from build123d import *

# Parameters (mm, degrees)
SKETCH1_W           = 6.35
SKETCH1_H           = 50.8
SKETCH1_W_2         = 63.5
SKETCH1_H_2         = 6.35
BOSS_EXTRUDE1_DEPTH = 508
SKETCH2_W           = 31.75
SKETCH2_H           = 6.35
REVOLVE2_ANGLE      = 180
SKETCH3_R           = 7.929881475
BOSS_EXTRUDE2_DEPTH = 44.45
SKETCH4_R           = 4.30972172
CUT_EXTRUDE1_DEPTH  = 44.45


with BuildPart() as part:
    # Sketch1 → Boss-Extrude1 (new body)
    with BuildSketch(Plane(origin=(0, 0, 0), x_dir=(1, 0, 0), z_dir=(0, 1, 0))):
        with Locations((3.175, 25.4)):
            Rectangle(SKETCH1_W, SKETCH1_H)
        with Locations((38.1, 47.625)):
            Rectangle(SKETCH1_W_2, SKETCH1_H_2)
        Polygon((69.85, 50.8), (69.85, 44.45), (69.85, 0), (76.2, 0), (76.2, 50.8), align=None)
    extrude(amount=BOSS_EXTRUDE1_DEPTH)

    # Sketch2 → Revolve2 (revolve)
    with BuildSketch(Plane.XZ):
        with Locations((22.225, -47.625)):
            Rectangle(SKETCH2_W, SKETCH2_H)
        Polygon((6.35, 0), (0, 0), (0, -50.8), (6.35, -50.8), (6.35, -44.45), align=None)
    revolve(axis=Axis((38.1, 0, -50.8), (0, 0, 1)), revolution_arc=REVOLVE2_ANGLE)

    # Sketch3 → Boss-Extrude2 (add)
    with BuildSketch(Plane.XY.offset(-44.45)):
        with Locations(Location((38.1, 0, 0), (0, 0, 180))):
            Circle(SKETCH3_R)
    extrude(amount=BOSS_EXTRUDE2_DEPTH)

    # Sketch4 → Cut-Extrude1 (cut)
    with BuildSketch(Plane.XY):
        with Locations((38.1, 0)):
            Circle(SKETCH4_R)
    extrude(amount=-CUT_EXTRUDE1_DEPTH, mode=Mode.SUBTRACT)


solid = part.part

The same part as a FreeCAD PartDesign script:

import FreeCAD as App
import Part
import Sketcher

V = App.Vector
Q = App.Units.Quantity

doc = App.newDocument("Part")
body = doc.addObject("PartDesign::Body", "Body")

# Sketch on XZ plane
sketch1 = body.newObject("Sketcher::SketchObject", "Sketch")
sketch1.AttachmentSupport = (doc.getObject("XZ_Plane"), [""])
sketch1.MapMode = "FlatFace"
sketch1.addGeometry(Part.LineSegment(V(0, -50.8, 0), V(0, 0, 0)), False)
sketch1.addGeometry(Part.LineSegment(V(0, 0, 0), V(6.35, 0, 0)), False)
sketch1.addGeometry(Part.LineSegment(V(6.35, 0, 0), V(6.35, -44.45, 0)), False)
sketch1.addGeometry(Part.LineSegment(V(6.35, -44.45, 0), V(69.85, -44.45, 0)), False)
sketch1.addGeometry(Part.LineSegment(V(69.85, -44.45, 0), V(69.85, 0, 0)), False)
sketch1.addGeometry(Part.LineSegment(V(69.85, 0, 0), V(76.2, 0, 0)), False)
sketch1.addGeometry(Part.LineSegment(V(76.2, 0, 0), V(76.2, -50.8, 0)), False)
sketch1.addGeometry(Part.LineSegment(V(76.2, -50.8, 0), V(0, -50.8, 0)), False)
sketch1.addConstraint(Sketcher.Constraint("Coincident", 0, 2, 1, 1))
sketch1.addConstraint(Sketcher.Constraint("Coincident", 1, 2, 2, 1))
sketch1.addConstraint(Sketcher.Constraint("Coincident", 2, 2, 3, 1))
sketch1.addConstraint(Sketcher.Constraint("Coincident", 3, 2, 4, 1))
sketch1.addConstraint(Sketcher.Constraint("Coincident", 4, 2, 5, 1))
sketch1.addConstraint(Sketcher.Constraint("Coincident", 5, 2, 6, 1))
sketch1.addConstraint(Sketcher.Constraint("Coincident", 6, 2, 7, 1))
sketch1.addConstraint(Sketcher.Constraint("Coincident", 7, 2, 0, 1))
sketch1.addConstraint(Sketcher.Constraint("Vertical", 0))
sketch1.addConstraint(Sketcher.Constraint("Horizontal", 1))
sketch1.addConstraint(Sketcher.Constraint("Vertical", 2))
sketch1.addConstraint(Sketcher.Constraint("Horizontal", 3))
sketch1.addConstraint(Sketcher.Constraint("Vertical", 4))
sketch1.addConstraint(Sketcher.Constraint("Horizontal", 5))
sketch1.addConstraint(Sketcher.Constraint("Vertical", 6))
sketch1.addConstraint(Sketcher.Constraint("Horizontal", 7))
sketch1.addConstraint(Sketcher.Constraint("Coincident", 0, 2, -1, 1))
sketch1.addConstraint(Sketcher.Constraint("PointOnObject", 4, 2, -1))
sketch1.addConstraint(Sketcher.Constraint("Equal", 1, 5))
sketch1.addConstraint(Sketcher.Constraint("DistanceX", 7, 2, 7, 1, Q("3 in")))
sketch1.addConstraint(Sketcher.Constraint("DistanceY", 0, 1, 0, 2, Q("2 in")))
sketch1.addConstraint(Sketcher.Constraint("DistanceX", 3, 1, 3, 2, Q("2.5 in")))
sketch1.addConstraint(Sketcher.Constraint("DistanceY", 2, 2, 2, 1, Q("1.75 in")))
pad1 = body.newObject("PartDesign::Pad", "Pad")
pad1.Profile = sketch1
pad1.Length = Q("20 in")
pad1.Reversed = True

# Sketch on XZ plane
sketch2 = body.newObject("Sketcher::SketchObject", "Sketch001")
sketch2.AttachmentSupport = (doc.getObject("XZ_Plane"), [""])
sketch2.MapMode = "FlatFace"
sketch2.addGeometry(Part.LineSegment(V(38.1, -50.8, 0), V(38.1, -44.45, 0)), False)
sketch2.addGeometry(Part.LineSegment(V(38.1, -44.45, 0), V(6.35, -44.45, 0)), False)
sketch2.addGeometry(Part.LineSegment(V(6.35, -44.45, 0), V(6.35, 0, 0)), False)
sketch2.addGeometry(Part.LineSegment(V(6.35, 0, 0), V(0, 0, 0)), False)
sketch2.addGeometry(Part.LineSegment(V(0, 0, 0), V(0, -50.8, 0)), False)
sketch2.addGeometry(Part.LineSegment(V(0, -50.8, 0), V(38.1, -50.8, 0)), False)
sketch2.addGeometry(Part.LineSegment(V(38.1, -50.8, 0), V(38.1, 0, 0)), True)  # axis
sketch2.addConstraint(Sketcher.Constraint("Coincident", 0, 2, 1, 1))
sketch2.addConstraint(Sketcher.Constraint("Coincident", 1, 2, 2, 1))
sketch2.addConstraint(Sketcher.Constraint("Coincident", 2, 2, 3, 1))
sketch2.addConstraint(Sketcher.Constraint("Coincident", 3, 2, 4, 1))
sketch2.addConstraint(Sketcher.Constraint("Coincident", 4, 2, 5, 1))
sketch2.addConstraint(Sketcher.Constraint("Coincident", 5, 2, 0, 1))
sketch2.addConstraint(Sketcher.Constraint("Vertical", 0))
sketch2.addConstraint(Sketcher.Constraint("Horizontal", 1))
sketch2.addConstraint(Sketcher.Constraint("Vertical", 2))
sketch2.addConstraint(Sketcher.Constraint("Horizontal", 3))
sketch2.addConstraint(Sketcher.Constraint("Vertical", 4))
sketch2.addConstraint(Sketcher.Constraint("Horizontal", 5))
sketch2.addConstraint(Sketcher.Constraint("Vertical", 6))
sketch2.addConstraint(Sketcher.Constraint("Coincident", 3, 2, -1, 1))
sketch2.addConstraint(Sketcher.Constraint("Coincident", 6, 1, 5, 2))
sketch2.addConstraint(Sketcher.Constraint("PointOnObject", 6, 2, -1))
sketch2.addConstraint(Sketcher.Constraint("Equal", 3, 0))
sketch2.addConstraint(Sketcher.Constraint("DistanceY", 4, 2, 4, 1, Q("2 in")))
sketch2.addConstraint(Sketcher.Constraint("DistanceX", 5, 1, 5, 2, Q("1.5 in")))
sketch2.addConstraint(Sketcher.Constraint("DistanceX", 1, 2, 1, 1, Q("1.25 in")))
revolution = body.newObject("PartDesign::Revolution", "Revolution")
revolution.Profile = sketch2
revolution.ReferenceAxis = (sketch2, ["Axis0"])
revolution.Angle = 180

# Sketch on XY plane
sketch3 = body.newObject("Sketcher::SketchObject", "Sketch002")
sketch3.AttachmentSupport = (doc.getObject("XY_Plane"), [""])
sketch3.MapMode = "FlatFace"
sketch3.AttachmentOffset = App.Placement(V(0, 0, -1.75 * 25.4), App.Rotation())
sketch3.addGeometry(Part.Circle(V(38.1, 0, 0), V(0, 0, 1), 7.929881), False)
sketch3.addConstraint(Sketcher.Constraint("PointOnObject", 0, 3, -1))
sketch3.addConstraint(Sketcher.Constraint("Diameter", 0, Q("0.6244001 in")))
sketch3.addConstraint(Sketcher.Constraint("DistanceX", -1, 1, 0, 3, Q("1.5 in")))
pad2 = body.newObject("PartDesign::Pad", "Pad001")
pad2.Profile = sketch3
pad2.Length = Q("1.75 in")

# Sketch on XY plane
sketch4 = body.newObject("Sketcher::SketchObject", "Sketch003")
sketch4.AttachmentSupport = (doc.getObject("XY_Plane"), [""])
sketch4.MapMode = "FlatFace"
sketch4.addGeometry(Part.Circle(V(38.1, 0, 0), V(0, 0, 1), 4.309722), False)
sketch4.addConstraint(Sketcher.Constraint("PointOnObject", 0, 3, -1))
sketch4.addConstraint(Sketcher.Constraint("DistanceX", -1, 1, 0, 3, Q("1.5 in")))
sketch4.addConstraint(Sketcher.Constraint("Diameter", 0, 8.619443))
pocket1 = body.newObject("PartDesign::Pocket", "Pocket")
pocket1.Profile = sketch4
pocket1.Length = Q("1.75 in")

doc.recompute()
